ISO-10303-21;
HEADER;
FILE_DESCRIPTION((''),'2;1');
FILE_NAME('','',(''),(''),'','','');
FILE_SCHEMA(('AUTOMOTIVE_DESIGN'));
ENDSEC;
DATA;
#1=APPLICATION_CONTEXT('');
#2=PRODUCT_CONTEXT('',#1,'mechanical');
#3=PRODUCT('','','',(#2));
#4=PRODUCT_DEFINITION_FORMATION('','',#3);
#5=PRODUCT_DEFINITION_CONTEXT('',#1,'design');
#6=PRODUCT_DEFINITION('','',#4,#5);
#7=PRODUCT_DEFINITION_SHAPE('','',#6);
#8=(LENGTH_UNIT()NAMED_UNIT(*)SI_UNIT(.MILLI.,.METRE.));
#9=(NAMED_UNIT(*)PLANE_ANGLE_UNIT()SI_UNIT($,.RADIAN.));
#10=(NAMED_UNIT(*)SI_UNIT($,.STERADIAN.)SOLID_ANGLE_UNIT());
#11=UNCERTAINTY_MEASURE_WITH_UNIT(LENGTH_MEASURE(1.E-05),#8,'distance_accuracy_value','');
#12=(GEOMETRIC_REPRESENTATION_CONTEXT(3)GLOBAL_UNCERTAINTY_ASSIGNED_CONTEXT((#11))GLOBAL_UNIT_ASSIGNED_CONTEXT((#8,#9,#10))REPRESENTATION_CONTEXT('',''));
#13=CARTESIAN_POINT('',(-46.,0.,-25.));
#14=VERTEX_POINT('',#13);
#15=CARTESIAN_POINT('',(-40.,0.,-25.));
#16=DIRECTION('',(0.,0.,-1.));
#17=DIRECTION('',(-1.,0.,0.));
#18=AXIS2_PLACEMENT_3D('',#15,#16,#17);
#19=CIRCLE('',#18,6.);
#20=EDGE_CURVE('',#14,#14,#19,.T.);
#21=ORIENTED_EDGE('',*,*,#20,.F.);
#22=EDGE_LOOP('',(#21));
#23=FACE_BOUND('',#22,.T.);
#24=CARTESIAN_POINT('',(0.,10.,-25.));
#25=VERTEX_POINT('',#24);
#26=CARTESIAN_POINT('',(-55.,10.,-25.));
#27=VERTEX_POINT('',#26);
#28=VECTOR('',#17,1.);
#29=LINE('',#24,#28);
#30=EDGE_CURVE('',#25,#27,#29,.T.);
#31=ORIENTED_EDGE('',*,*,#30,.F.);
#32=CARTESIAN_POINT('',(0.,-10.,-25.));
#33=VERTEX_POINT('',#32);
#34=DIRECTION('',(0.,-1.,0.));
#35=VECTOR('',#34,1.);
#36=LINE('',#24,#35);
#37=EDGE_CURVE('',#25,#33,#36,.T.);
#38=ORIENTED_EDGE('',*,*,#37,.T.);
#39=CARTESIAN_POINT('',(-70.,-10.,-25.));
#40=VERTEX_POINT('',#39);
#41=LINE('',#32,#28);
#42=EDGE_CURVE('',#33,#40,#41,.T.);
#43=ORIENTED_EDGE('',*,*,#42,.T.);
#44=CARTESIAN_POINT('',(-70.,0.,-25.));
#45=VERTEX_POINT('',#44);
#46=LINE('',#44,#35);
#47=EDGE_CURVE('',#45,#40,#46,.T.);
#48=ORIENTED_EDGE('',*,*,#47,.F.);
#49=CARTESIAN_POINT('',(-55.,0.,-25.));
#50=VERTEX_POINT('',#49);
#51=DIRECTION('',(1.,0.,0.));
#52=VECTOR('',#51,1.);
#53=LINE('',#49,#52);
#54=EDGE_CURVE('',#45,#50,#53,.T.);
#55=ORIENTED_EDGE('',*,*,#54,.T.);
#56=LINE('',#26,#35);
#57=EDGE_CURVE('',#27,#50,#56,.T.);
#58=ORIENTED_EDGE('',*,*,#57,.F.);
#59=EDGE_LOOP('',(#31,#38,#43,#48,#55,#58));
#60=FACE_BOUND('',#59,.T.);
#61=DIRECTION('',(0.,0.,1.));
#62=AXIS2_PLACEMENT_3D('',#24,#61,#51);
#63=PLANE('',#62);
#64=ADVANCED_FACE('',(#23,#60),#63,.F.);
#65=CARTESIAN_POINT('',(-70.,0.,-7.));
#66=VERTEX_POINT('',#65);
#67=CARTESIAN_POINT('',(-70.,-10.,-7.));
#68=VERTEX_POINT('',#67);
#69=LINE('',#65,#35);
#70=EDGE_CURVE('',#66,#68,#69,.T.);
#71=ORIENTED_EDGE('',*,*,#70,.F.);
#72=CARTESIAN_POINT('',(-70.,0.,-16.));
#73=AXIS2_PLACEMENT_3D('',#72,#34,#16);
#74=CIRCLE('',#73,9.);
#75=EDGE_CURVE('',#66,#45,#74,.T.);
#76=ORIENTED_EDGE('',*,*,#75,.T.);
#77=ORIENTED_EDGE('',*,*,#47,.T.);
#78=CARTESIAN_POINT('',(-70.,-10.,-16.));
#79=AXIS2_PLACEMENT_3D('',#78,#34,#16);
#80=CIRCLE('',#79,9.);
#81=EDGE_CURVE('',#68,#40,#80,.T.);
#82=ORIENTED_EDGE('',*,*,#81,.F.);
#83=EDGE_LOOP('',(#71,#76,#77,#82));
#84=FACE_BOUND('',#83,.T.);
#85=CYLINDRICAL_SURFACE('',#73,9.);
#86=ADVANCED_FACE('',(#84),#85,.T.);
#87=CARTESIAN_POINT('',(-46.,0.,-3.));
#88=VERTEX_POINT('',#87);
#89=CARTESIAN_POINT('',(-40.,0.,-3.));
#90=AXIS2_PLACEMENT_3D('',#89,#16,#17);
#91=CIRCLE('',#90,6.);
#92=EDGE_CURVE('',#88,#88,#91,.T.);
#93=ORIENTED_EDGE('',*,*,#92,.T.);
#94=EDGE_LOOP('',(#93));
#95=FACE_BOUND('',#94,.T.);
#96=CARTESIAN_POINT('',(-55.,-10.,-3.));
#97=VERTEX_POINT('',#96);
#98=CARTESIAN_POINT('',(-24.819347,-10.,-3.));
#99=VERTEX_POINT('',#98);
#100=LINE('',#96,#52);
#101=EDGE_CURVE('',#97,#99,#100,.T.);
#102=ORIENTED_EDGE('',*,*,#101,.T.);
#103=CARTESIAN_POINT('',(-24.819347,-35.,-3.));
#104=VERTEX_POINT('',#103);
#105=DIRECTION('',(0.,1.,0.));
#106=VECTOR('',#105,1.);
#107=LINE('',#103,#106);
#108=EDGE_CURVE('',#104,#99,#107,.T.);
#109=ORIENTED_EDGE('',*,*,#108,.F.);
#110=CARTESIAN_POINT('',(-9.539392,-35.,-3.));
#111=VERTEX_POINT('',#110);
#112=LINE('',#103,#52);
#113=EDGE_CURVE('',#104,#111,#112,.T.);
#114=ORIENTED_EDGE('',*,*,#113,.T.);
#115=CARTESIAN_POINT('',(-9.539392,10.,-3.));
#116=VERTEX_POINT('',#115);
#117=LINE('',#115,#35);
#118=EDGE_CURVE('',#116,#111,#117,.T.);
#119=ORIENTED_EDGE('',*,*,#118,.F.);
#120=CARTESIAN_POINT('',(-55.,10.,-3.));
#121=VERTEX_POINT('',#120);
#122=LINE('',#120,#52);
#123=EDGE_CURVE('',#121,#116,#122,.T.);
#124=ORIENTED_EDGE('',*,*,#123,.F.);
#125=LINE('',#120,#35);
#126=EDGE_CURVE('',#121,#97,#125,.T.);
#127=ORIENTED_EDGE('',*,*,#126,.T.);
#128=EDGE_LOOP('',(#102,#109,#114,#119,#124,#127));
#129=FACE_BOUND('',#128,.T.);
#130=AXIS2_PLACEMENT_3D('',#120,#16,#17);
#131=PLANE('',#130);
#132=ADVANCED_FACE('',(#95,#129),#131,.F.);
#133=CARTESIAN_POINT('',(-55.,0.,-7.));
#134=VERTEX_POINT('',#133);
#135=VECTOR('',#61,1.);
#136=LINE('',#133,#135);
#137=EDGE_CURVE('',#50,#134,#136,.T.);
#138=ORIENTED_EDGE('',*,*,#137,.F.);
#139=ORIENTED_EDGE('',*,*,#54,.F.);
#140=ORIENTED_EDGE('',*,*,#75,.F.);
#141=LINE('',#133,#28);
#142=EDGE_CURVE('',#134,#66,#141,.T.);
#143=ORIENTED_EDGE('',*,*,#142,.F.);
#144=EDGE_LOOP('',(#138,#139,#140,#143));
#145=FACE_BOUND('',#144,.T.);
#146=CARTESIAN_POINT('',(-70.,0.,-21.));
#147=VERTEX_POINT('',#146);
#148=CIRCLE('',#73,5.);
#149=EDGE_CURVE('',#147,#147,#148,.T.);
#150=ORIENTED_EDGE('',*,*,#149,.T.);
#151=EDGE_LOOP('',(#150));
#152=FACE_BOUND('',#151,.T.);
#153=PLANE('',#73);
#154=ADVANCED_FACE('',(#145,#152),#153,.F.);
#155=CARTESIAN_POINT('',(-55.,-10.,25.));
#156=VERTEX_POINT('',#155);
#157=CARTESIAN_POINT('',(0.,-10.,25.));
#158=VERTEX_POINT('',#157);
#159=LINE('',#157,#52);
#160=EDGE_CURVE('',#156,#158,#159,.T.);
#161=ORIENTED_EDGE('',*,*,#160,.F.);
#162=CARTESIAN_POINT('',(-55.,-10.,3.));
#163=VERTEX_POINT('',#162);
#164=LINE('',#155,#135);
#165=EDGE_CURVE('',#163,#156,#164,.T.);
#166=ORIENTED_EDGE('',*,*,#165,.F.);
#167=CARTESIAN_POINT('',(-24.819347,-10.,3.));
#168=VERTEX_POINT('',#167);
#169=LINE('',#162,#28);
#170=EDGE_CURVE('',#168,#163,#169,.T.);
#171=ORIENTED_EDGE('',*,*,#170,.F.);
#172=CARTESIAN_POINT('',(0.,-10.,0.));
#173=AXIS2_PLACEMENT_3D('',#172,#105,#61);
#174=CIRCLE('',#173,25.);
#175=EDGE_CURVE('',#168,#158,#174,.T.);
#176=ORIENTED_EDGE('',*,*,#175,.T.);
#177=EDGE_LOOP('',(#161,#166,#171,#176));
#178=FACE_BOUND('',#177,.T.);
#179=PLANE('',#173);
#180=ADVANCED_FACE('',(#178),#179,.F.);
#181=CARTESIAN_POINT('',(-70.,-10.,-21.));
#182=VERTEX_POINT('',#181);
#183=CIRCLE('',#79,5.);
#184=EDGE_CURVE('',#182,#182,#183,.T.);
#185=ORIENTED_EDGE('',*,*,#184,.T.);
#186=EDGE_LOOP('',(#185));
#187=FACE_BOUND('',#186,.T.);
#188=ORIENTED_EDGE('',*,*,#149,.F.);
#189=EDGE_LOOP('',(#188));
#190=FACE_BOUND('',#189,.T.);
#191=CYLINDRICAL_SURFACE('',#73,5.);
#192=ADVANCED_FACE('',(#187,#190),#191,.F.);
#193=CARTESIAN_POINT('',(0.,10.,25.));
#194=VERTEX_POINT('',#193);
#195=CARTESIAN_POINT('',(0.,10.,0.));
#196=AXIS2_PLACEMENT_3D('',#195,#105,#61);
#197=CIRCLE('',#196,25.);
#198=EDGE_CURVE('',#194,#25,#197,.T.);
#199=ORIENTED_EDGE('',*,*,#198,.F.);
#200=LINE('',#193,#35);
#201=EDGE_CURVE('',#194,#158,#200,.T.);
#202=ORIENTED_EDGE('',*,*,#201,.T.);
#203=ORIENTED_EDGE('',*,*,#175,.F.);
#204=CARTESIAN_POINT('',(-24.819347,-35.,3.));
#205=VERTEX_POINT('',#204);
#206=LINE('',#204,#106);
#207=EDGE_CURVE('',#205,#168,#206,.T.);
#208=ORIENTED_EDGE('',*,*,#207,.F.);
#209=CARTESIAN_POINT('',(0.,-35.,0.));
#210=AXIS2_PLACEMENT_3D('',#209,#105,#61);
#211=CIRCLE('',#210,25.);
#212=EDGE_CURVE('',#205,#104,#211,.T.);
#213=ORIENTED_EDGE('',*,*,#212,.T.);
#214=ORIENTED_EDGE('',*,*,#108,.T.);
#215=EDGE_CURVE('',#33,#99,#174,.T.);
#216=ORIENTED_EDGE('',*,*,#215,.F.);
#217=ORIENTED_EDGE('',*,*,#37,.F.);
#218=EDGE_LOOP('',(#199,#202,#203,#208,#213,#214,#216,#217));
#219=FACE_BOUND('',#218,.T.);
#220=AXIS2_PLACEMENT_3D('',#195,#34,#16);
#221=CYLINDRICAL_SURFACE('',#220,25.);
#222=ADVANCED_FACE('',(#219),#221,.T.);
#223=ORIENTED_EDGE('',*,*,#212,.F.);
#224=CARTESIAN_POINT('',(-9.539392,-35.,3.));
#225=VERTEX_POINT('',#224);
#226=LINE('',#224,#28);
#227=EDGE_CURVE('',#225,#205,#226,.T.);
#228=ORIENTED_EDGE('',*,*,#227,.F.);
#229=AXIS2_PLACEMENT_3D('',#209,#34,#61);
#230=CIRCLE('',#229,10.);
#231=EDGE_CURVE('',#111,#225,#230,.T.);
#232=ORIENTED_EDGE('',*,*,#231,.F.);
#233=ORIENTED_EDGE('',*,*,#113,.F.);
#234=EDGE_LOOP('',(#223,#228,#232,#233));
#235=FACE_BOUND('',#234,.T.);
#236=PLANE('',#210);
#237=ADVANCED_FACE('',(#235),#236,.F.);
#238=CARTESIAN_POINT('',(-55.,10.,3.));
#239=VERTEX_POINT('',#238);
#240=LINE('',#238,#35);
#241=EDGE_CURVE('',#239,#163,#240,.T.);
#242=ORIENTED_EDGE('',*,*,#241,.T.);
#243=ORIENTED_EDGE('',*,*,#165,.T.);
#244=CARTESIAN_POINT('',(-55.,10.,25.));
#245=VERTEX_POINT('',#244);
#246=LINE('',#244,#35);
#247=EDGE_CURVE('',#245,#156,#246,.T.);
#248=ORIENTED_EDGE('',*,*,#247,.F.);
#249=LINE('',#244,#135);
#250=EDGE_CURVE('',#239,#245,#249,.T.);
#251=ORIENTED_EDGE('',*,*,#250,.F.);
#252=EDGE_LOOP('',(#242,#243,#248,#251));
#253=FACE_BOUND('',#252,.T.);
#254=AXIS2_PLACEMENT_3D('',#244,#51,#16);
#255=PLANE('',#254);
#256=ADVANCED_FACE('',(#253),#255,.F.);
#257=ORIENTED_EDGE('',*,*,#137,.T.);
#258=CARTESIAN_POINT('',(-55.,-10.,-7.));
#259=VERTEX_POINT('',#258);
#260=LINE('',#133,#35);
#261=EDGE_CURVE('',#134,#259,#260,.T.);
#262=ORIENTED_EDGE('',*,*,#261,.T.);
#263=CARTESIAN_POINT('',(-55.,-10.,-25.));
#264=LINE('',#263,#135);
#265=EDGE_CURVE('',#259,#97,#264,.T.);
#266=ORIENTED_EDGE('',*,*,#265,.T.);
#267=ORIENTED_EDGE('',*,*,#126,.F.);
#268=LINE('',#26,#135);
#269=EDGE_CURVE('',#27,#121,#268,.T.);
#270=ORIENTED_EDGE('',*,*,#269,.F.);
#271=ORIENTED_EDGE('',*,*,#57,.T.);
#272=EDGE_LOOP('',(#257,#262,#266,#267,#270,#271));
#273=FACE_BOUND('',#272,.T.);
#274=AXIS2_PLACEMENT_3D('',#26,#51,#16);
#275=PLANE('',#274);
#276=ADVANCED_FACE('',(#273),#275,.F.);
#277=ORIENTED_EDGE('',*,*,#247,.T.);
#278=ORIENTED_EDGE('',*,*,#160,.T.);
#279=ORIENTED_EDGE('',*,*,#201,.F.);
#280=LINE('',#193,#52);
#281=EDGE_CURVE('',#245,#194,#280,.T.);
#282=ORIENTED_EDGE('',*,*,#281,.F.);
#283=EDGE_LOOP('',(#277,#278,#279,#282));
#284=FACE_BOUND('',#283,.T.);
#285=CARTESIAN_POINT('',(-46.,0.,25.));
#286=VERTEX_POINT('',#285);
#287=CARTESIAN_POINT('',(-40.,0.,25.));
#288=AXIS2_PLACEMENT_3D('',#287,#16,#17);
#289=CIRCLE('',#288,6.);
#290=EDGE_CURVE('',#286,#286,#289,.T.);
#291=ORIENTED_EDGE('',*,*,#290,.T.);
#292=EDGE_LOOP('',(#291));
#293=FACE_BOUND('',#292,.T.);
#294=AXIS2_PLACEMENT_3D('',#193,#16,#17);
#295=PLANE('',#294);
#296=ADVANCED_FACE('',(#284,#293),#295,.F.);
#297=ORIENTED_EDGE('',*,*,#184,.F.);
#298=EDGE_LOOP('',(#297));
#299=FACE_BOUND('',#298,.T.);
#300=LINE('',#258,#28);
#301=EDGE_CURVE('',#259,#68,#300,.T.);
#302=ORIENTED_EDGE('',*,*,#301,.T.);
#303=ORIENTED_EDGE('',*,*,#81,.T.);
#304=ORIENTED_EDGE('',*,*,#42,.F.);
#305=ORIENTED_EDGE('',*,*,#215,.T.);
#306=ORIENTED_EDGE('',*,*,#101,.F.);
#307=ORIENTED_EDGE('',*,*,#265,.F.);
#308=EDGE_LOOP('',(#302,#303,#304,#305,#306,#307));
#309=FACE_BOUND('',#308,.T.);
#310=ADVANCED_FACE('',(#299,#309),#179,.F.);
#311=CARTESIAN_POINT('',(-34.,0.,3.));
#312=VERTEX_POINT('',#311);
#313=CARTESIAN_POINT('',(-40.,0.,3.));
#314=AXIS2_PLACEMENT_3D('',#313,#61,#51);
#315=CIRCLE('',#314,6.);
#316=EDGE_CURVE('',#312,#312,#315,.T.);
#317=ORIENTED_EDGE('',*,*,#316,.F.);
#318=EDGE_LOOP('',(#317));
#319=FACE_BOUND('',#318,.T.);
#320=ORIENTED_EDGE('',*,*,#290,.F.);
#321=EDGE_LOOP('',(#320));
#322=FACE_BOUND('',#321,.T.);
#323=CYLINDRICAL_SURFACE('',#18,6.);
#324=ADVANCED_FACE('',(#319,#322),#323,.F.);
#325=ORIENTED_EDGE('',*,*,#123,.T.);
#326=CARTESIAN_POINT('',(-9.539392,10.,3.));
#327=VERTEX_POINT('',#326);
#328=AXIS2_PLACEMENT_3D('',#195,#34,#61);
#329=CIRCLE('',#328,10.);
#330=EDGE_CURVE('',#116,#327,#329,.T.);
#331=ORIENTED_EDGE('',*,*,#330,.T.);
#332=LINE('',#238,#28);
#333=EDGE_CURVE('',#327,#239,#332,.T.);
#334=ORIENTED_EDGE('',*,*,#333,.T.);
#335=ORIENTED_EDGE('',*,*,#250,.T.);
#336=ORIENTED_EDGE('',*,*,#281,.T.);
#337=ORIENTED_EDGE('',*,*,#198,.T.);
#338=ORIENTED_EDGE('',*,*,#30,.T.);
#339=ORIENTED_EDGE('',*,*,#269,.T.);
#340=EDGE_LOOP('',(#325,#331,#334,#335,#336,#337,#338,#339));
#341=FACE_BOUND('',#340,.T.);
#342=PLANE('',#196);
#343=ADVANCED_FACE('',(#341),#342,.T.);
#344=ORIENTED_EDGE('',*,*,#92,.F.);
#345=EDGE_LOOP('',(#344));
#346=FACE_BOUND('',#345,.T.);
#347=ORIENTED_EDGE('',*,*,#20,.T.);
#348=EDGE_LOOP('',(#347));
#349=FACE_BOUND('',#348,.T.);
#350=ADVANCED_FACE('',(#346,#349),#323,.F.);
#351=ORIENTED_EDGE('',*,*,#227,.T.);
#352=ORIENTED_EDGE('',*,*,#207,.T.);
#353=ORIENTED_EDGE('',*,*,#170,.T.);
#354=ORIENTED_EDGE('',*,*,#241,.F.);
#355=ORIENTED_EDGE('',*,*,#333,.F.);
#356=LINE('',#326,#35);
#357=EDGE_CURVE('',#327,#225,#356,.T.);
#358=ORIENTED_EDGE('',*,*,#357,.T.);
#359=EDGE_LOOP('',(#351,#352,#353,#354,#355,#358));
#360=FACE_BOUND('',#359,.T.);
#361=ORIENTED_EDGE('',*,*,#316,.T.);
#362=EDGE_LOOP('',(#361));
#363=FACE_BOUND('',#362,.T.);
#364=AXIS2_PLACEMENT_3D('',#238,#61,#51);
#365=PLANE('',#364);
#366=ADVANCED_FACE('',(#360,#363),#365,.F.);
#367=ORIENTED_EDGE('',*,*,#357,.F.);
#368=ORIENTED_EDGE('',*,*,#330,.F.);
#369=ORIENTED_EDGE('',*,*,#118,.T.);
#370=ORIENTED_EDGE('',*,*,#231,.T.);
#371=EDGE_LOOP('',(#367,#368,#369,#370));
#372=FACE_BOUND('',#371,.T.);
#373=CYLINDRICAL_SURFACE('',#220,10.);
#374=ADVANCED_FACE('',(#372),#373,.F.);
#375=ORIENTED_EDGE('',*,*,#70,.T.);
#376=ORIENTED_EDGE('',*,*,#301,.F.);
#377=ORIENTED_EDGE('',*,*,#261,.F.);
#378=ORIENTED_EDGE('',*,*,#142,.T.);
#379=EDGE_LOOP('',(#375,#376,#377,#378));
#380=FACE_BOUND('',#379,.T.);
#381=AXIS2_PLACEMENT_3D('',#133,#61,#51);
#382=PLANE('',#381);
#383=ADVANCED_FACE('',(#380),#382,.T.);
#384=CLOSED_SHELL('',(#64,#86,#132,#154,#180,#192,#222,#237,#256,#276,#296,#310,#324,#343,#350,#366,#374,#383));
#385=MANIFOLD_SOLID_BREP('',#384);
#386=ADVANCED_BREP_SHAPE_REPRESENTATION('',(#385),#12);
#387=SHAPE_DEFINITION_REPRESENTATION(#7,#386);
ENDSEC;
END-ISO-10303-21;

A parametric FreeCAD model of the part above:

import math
import FreeCAD as App
import Part
import Sketcher
from FreeCAD import Vector

doc = App.newDocument("Part")
body = doc.addObject("PartDesign::Body", "Body")

# Sketch on XZ plane
sketch1 = doc.addObject("Sketcher::SketchObject", "Sketch")
body.addObject(sketch1)
sketch1.AttachmentSupport = (doc.XZ_Plane, [""])
sketch1.MapMode = "FlatFace"
sketch1.addGeometry(Part.LineSegment(Vector(0, -25, 0), Vector(-55, -25, 0)), False)
sketch1.addGeometry(Part.LineSegment(Vector(-55, -25, 0), Vector(-55, -3, 0)), False)
sketch1.addGeometry(Part.LineSegment(Vector(-55, -3, 0), Vector(-10, -3, 0)), False)
sketch1.addGeometry(Part.ArcOfCircle(Part.Circle(Vector(0, 0, 0), Vector(0, 0, 1), 10), math.radians(-163), math.radians(163)), False)
sketch1.addGeometry(Part.LineSegment(Vector(-10, 3, 0), Vector(-55, 3, 0)), False)
sketch1.addGeometry(Part.LineSegment(Vector(-55, 3, 0), Vector(-55, 25, 0)), False)
sketch1.addGeometry(Part.LineSegment(Vector(-55, 25, 0), Vector(0, 25, 0)), False)
sketch1.addGeometry(Part.ArcOfCircle(Part.Circle(Vector(0, 0, 0), Vector(0, 0, 1), 25), math.radians(-90), math.radians(90)), False)
sketch1.addConstraint(Sketcher.Constraint("Coincident", 0, 2, 1, 1))
sketch1.addConstraint(Sketcher.Constraint("Coincident", 1, 2, 2, 1))
sketch1.addConstraint(Sketcher.Constraint("Coincident", 2, 2, 3, 1))
sketch1.addConstraint(Sketcher.Constraint("Coincident", 3, 2, 4, 1))
sketch1.addConstraint(Sketcher.Constraint("Coincident", 4, 2, 5, 1))
sketch1.addConstraint(Sketcher.Constraint("Coincident", 5, 2, 6, 1))
sketch1.addConstraint(Sketcher.Constraint("Tangent", 6, 2, 7, 2))
sketch1.addConstraint(Sketcher.Constraint("Tangent", 7, 1, 0, 1))
sketch1.addConstraint(Sketcher.Constraint("Horizontal", 0))
sketch1.addConstraint(Sketcher.Constraint("Vertical", 1))
sketch1.addConstraint(Sketcher.Constraint("Horizontal", 2))
sketch1.addConstraint(Sketcher.Constraint("Horizontal", 4))
sketch1.addConstraint(Sketcher.Constraint("Vertical", 5))
sketch1.addConstraint(Sketcher.Constraint("Horizontal", 6))
sketch1.addConstraint(Sketcher.Constraint("Coincident", 3, 3, -1, 1))
sketch1.addConstraint(Sketcher.Constraint("Coincident", 7, 3, -1, 1))
sketch1.addConstraint(Sketcher.Constraint("Symmetric", 1, 2, 4, 2, -1))
sketch1.addConstraint(Sketcher.Constraint("Radius", 3, 10.0))
sketch1.addConstraint(Sketcher.Constraint("Radius", 7, 25.0))
sketch1.addConstraint(Sketcher.Constraint("DistanceX", 0, 2, 0, 1, 55.0))
sketch1.addConstraint(Sketcher.Constraint("DistanceY", 1, 1, 1, 2, 22.0))
pad1 = doc.addObject("PartDesign::Pad", "Pad")
body.addObject(pad1)
pad1.Profile = sketch1
pad1.Length = 20
pad1.Midplane = True

# Sketch on XZ plane
sketch2 = doc.addObject("Sketcher::SketchObject", "Sketch001")
body.addObject(sketch2)
sketch2.AttachmentSupport = (doc.XZ_Plane, [""])
sketch2.MapMode = "FlatFace"
sketch2.AttachmentOffset = App.Placement(Vector(0, 0, -10), App.Rotation())
sketch2.addGeometry(Part.LineSegment(Vector(-10, 3, 0), Vector(-25, 3, 0)), False)
sketch2.addGeometry(Part.ArcOfCircle(Part.Circle(Vector(0, 0, 0), Vector(0, 0, 1), 25), math.radians(-173), math.radians(173)), False)
sketch2.addGeometry(Part.LineSegment(Vector(-25, -3, 0), Vector(-10, -3, 0)), False)
sketch2.addGeometry(Part.ArcOfCircle(Part.Circle(Vector(0, 0, 0), Vector(0, 0, 1), 10), math.radians(-163), math.radians(163)), False)
sketch2.addConstraint(Sketcher.Constraint("Coincident", 0, 2, 1, 2))
sketch2.addConstraint(Sketcher.Constraint("Coincident", 1, 1, 2, 1))
sketch2.addConstraint(Sketcher.Constraint("Coincident", 2, 2, 3, 1))
sketch2.addConstraint(Sketcher.Constraint("Coincident", 3, 2, 0, 1))
sketch2.addConstraint(Sketcher.Constraint("Horizontal", 0))
sketch2.addConstraint(Sketcher.Constraint("Horizontal", 2))
sketch2.addConstraint(Sketcher.Constraint("Coincident", 1, 3, -1, 1))
sketch2.addConstraint(Sketcher.Constraint("Coincident", 3, 3, -1, 1))
sketch2.addConstraint(Sketcher.Constraint("Vertical", 0, 2, 1, 1))
sketch2.addConstraint(Sketcher.Constraint("Radius", 1, 25.0))
sketch2.addConstraint(Sketcher.Constraint("Radius", 3, 10.0))
sketch2.addConstraint(Sketcher.Constraint("DistanceY", -1, 1, 0, 2, 3.0))
pad2 = doc.addObject("PartDesign::Pad", "Pad001")
body.addObject(pad2)
pad2.Profile = sketch2
pad2.Length = 45

# Sketch on XZ plane
sketch3 = doc.addObject("Sketcher::SketchObject", "Sketch002")
body.addObject(sketch3)
sketch3.AttachmentSupport = (doc.XZ_Plane, [""])
sketch3.MapMode = "FlatFace"
sketch3.AttachmentOffset = App.Placement(Vector(0, 0, 10), App.Rotation())
sketch3.addGeometry(Part.LineSegment(Vector(-55, -7, 0), Vector(-70, -7, 0)), False)
sketch3.addGeometry(Part.ArcOfCircle(Part.Circle(Vector(-70, -16, 0), Vector(0, 0, 1), 9), math.radians(90), math.radians(270)), False)
sketch3.addGeometry(Part.LineSegment(Vector(-70, -25, 0), Vector(-55, -25, 0)), False)
sketch3.addGeometry(Part.LineSegment(Vector(-55, -25, 0), Vector(-55, -7, 0)), False)
sketch3.addGeometry(Part.Circle(Vector(-70, -16, 0), Vector(0, 0, 1), 5), False)
sketch3.addConstraint(Sketcher.Constraint("Tangent", 0, 2, 1, 1))
sketch3.addConstraint(Sketcher.Constraint("Tangent", 1, 2, 2, 1))
sketch3.addConstraint(Sketcher.Constraint("Coincident", 2, 2, 3, 1))
sketch3.addConstraint(Sketcher.Constraint("Coincident", 3, 2, 0, 1))
sketch3.addConstraint(Sketcher.Constraint("Horizontal", 0))
sketch3.addConstraint(Sketcher.Constraint("Horizontal", 2))
sketch3.addConstraint(Sketcher.Constraint("Vertical", 3))
sketch3.addConstraint(Sketcher.Constraint("Coincident", 4, 3, 1, 3))
sketch3.addConstraint(Sketcher.Constraint("Diameter", 4, 10.0))
sketch3.addConstraint(Sketcher.Constraint("Radius", 1, 9.0))
sketch3.addConstraint(Sketcher.Constraint("DistanceX", 0, 2, 0, 1, 15.0))
sketch3.addConstraint(Sketcher.Constraint("DistanceX", 1, 3, -1, 1, 70.0))
sketch3.addConstraint(Sketcher.Constraint("DistanceY", 1, 3, -1, 1, 16.0))
pad3 = doc.addObject("PartDesign::Pad", "Pad002")
body.addObject(pad3)
pad3.Profile = sketch3
pad3.Length = 10
pad3.Reversed = True

# Sketch on XY plane
sketch4 = doc.addObject("Sketcher::SketchObject", "Sketch003")
body.addObject(sketch4)
sketch4.AttachmentSupport = (doc.XY_Plane, [""])
sketch4.MapMode = "FlatFace"
sketch4.AttachmentOffset = App.Placement(Vector(0, 0, -25), App.Rotation())
sketch4.addGeometry(Part.Circle(Vector(-40, 0, 0), Vector(0, 0, 1), 6), False)
sketch4.addConstraint(Sketcher.Constraint("PointOnObject", 0, 3, -1))
sketch4.addConstraint(Sketcher.Constraint("Diameter", 0, 12.0))
sketch4.addConstraint(Sketcher.Constraint("DistanceX", 0, 3, -1, 1, 40.0))
doc.recompute()
hole = doc.addObject("PartDesign::Hole", "Hole")
body.addObject(hole)
hole.Profile = sketch4
hole.ThreadType = "None"
hole.Diameter = 12
hole.DepthType = "ThroughAll"
hole.Reversed = True

doc.recompute()
